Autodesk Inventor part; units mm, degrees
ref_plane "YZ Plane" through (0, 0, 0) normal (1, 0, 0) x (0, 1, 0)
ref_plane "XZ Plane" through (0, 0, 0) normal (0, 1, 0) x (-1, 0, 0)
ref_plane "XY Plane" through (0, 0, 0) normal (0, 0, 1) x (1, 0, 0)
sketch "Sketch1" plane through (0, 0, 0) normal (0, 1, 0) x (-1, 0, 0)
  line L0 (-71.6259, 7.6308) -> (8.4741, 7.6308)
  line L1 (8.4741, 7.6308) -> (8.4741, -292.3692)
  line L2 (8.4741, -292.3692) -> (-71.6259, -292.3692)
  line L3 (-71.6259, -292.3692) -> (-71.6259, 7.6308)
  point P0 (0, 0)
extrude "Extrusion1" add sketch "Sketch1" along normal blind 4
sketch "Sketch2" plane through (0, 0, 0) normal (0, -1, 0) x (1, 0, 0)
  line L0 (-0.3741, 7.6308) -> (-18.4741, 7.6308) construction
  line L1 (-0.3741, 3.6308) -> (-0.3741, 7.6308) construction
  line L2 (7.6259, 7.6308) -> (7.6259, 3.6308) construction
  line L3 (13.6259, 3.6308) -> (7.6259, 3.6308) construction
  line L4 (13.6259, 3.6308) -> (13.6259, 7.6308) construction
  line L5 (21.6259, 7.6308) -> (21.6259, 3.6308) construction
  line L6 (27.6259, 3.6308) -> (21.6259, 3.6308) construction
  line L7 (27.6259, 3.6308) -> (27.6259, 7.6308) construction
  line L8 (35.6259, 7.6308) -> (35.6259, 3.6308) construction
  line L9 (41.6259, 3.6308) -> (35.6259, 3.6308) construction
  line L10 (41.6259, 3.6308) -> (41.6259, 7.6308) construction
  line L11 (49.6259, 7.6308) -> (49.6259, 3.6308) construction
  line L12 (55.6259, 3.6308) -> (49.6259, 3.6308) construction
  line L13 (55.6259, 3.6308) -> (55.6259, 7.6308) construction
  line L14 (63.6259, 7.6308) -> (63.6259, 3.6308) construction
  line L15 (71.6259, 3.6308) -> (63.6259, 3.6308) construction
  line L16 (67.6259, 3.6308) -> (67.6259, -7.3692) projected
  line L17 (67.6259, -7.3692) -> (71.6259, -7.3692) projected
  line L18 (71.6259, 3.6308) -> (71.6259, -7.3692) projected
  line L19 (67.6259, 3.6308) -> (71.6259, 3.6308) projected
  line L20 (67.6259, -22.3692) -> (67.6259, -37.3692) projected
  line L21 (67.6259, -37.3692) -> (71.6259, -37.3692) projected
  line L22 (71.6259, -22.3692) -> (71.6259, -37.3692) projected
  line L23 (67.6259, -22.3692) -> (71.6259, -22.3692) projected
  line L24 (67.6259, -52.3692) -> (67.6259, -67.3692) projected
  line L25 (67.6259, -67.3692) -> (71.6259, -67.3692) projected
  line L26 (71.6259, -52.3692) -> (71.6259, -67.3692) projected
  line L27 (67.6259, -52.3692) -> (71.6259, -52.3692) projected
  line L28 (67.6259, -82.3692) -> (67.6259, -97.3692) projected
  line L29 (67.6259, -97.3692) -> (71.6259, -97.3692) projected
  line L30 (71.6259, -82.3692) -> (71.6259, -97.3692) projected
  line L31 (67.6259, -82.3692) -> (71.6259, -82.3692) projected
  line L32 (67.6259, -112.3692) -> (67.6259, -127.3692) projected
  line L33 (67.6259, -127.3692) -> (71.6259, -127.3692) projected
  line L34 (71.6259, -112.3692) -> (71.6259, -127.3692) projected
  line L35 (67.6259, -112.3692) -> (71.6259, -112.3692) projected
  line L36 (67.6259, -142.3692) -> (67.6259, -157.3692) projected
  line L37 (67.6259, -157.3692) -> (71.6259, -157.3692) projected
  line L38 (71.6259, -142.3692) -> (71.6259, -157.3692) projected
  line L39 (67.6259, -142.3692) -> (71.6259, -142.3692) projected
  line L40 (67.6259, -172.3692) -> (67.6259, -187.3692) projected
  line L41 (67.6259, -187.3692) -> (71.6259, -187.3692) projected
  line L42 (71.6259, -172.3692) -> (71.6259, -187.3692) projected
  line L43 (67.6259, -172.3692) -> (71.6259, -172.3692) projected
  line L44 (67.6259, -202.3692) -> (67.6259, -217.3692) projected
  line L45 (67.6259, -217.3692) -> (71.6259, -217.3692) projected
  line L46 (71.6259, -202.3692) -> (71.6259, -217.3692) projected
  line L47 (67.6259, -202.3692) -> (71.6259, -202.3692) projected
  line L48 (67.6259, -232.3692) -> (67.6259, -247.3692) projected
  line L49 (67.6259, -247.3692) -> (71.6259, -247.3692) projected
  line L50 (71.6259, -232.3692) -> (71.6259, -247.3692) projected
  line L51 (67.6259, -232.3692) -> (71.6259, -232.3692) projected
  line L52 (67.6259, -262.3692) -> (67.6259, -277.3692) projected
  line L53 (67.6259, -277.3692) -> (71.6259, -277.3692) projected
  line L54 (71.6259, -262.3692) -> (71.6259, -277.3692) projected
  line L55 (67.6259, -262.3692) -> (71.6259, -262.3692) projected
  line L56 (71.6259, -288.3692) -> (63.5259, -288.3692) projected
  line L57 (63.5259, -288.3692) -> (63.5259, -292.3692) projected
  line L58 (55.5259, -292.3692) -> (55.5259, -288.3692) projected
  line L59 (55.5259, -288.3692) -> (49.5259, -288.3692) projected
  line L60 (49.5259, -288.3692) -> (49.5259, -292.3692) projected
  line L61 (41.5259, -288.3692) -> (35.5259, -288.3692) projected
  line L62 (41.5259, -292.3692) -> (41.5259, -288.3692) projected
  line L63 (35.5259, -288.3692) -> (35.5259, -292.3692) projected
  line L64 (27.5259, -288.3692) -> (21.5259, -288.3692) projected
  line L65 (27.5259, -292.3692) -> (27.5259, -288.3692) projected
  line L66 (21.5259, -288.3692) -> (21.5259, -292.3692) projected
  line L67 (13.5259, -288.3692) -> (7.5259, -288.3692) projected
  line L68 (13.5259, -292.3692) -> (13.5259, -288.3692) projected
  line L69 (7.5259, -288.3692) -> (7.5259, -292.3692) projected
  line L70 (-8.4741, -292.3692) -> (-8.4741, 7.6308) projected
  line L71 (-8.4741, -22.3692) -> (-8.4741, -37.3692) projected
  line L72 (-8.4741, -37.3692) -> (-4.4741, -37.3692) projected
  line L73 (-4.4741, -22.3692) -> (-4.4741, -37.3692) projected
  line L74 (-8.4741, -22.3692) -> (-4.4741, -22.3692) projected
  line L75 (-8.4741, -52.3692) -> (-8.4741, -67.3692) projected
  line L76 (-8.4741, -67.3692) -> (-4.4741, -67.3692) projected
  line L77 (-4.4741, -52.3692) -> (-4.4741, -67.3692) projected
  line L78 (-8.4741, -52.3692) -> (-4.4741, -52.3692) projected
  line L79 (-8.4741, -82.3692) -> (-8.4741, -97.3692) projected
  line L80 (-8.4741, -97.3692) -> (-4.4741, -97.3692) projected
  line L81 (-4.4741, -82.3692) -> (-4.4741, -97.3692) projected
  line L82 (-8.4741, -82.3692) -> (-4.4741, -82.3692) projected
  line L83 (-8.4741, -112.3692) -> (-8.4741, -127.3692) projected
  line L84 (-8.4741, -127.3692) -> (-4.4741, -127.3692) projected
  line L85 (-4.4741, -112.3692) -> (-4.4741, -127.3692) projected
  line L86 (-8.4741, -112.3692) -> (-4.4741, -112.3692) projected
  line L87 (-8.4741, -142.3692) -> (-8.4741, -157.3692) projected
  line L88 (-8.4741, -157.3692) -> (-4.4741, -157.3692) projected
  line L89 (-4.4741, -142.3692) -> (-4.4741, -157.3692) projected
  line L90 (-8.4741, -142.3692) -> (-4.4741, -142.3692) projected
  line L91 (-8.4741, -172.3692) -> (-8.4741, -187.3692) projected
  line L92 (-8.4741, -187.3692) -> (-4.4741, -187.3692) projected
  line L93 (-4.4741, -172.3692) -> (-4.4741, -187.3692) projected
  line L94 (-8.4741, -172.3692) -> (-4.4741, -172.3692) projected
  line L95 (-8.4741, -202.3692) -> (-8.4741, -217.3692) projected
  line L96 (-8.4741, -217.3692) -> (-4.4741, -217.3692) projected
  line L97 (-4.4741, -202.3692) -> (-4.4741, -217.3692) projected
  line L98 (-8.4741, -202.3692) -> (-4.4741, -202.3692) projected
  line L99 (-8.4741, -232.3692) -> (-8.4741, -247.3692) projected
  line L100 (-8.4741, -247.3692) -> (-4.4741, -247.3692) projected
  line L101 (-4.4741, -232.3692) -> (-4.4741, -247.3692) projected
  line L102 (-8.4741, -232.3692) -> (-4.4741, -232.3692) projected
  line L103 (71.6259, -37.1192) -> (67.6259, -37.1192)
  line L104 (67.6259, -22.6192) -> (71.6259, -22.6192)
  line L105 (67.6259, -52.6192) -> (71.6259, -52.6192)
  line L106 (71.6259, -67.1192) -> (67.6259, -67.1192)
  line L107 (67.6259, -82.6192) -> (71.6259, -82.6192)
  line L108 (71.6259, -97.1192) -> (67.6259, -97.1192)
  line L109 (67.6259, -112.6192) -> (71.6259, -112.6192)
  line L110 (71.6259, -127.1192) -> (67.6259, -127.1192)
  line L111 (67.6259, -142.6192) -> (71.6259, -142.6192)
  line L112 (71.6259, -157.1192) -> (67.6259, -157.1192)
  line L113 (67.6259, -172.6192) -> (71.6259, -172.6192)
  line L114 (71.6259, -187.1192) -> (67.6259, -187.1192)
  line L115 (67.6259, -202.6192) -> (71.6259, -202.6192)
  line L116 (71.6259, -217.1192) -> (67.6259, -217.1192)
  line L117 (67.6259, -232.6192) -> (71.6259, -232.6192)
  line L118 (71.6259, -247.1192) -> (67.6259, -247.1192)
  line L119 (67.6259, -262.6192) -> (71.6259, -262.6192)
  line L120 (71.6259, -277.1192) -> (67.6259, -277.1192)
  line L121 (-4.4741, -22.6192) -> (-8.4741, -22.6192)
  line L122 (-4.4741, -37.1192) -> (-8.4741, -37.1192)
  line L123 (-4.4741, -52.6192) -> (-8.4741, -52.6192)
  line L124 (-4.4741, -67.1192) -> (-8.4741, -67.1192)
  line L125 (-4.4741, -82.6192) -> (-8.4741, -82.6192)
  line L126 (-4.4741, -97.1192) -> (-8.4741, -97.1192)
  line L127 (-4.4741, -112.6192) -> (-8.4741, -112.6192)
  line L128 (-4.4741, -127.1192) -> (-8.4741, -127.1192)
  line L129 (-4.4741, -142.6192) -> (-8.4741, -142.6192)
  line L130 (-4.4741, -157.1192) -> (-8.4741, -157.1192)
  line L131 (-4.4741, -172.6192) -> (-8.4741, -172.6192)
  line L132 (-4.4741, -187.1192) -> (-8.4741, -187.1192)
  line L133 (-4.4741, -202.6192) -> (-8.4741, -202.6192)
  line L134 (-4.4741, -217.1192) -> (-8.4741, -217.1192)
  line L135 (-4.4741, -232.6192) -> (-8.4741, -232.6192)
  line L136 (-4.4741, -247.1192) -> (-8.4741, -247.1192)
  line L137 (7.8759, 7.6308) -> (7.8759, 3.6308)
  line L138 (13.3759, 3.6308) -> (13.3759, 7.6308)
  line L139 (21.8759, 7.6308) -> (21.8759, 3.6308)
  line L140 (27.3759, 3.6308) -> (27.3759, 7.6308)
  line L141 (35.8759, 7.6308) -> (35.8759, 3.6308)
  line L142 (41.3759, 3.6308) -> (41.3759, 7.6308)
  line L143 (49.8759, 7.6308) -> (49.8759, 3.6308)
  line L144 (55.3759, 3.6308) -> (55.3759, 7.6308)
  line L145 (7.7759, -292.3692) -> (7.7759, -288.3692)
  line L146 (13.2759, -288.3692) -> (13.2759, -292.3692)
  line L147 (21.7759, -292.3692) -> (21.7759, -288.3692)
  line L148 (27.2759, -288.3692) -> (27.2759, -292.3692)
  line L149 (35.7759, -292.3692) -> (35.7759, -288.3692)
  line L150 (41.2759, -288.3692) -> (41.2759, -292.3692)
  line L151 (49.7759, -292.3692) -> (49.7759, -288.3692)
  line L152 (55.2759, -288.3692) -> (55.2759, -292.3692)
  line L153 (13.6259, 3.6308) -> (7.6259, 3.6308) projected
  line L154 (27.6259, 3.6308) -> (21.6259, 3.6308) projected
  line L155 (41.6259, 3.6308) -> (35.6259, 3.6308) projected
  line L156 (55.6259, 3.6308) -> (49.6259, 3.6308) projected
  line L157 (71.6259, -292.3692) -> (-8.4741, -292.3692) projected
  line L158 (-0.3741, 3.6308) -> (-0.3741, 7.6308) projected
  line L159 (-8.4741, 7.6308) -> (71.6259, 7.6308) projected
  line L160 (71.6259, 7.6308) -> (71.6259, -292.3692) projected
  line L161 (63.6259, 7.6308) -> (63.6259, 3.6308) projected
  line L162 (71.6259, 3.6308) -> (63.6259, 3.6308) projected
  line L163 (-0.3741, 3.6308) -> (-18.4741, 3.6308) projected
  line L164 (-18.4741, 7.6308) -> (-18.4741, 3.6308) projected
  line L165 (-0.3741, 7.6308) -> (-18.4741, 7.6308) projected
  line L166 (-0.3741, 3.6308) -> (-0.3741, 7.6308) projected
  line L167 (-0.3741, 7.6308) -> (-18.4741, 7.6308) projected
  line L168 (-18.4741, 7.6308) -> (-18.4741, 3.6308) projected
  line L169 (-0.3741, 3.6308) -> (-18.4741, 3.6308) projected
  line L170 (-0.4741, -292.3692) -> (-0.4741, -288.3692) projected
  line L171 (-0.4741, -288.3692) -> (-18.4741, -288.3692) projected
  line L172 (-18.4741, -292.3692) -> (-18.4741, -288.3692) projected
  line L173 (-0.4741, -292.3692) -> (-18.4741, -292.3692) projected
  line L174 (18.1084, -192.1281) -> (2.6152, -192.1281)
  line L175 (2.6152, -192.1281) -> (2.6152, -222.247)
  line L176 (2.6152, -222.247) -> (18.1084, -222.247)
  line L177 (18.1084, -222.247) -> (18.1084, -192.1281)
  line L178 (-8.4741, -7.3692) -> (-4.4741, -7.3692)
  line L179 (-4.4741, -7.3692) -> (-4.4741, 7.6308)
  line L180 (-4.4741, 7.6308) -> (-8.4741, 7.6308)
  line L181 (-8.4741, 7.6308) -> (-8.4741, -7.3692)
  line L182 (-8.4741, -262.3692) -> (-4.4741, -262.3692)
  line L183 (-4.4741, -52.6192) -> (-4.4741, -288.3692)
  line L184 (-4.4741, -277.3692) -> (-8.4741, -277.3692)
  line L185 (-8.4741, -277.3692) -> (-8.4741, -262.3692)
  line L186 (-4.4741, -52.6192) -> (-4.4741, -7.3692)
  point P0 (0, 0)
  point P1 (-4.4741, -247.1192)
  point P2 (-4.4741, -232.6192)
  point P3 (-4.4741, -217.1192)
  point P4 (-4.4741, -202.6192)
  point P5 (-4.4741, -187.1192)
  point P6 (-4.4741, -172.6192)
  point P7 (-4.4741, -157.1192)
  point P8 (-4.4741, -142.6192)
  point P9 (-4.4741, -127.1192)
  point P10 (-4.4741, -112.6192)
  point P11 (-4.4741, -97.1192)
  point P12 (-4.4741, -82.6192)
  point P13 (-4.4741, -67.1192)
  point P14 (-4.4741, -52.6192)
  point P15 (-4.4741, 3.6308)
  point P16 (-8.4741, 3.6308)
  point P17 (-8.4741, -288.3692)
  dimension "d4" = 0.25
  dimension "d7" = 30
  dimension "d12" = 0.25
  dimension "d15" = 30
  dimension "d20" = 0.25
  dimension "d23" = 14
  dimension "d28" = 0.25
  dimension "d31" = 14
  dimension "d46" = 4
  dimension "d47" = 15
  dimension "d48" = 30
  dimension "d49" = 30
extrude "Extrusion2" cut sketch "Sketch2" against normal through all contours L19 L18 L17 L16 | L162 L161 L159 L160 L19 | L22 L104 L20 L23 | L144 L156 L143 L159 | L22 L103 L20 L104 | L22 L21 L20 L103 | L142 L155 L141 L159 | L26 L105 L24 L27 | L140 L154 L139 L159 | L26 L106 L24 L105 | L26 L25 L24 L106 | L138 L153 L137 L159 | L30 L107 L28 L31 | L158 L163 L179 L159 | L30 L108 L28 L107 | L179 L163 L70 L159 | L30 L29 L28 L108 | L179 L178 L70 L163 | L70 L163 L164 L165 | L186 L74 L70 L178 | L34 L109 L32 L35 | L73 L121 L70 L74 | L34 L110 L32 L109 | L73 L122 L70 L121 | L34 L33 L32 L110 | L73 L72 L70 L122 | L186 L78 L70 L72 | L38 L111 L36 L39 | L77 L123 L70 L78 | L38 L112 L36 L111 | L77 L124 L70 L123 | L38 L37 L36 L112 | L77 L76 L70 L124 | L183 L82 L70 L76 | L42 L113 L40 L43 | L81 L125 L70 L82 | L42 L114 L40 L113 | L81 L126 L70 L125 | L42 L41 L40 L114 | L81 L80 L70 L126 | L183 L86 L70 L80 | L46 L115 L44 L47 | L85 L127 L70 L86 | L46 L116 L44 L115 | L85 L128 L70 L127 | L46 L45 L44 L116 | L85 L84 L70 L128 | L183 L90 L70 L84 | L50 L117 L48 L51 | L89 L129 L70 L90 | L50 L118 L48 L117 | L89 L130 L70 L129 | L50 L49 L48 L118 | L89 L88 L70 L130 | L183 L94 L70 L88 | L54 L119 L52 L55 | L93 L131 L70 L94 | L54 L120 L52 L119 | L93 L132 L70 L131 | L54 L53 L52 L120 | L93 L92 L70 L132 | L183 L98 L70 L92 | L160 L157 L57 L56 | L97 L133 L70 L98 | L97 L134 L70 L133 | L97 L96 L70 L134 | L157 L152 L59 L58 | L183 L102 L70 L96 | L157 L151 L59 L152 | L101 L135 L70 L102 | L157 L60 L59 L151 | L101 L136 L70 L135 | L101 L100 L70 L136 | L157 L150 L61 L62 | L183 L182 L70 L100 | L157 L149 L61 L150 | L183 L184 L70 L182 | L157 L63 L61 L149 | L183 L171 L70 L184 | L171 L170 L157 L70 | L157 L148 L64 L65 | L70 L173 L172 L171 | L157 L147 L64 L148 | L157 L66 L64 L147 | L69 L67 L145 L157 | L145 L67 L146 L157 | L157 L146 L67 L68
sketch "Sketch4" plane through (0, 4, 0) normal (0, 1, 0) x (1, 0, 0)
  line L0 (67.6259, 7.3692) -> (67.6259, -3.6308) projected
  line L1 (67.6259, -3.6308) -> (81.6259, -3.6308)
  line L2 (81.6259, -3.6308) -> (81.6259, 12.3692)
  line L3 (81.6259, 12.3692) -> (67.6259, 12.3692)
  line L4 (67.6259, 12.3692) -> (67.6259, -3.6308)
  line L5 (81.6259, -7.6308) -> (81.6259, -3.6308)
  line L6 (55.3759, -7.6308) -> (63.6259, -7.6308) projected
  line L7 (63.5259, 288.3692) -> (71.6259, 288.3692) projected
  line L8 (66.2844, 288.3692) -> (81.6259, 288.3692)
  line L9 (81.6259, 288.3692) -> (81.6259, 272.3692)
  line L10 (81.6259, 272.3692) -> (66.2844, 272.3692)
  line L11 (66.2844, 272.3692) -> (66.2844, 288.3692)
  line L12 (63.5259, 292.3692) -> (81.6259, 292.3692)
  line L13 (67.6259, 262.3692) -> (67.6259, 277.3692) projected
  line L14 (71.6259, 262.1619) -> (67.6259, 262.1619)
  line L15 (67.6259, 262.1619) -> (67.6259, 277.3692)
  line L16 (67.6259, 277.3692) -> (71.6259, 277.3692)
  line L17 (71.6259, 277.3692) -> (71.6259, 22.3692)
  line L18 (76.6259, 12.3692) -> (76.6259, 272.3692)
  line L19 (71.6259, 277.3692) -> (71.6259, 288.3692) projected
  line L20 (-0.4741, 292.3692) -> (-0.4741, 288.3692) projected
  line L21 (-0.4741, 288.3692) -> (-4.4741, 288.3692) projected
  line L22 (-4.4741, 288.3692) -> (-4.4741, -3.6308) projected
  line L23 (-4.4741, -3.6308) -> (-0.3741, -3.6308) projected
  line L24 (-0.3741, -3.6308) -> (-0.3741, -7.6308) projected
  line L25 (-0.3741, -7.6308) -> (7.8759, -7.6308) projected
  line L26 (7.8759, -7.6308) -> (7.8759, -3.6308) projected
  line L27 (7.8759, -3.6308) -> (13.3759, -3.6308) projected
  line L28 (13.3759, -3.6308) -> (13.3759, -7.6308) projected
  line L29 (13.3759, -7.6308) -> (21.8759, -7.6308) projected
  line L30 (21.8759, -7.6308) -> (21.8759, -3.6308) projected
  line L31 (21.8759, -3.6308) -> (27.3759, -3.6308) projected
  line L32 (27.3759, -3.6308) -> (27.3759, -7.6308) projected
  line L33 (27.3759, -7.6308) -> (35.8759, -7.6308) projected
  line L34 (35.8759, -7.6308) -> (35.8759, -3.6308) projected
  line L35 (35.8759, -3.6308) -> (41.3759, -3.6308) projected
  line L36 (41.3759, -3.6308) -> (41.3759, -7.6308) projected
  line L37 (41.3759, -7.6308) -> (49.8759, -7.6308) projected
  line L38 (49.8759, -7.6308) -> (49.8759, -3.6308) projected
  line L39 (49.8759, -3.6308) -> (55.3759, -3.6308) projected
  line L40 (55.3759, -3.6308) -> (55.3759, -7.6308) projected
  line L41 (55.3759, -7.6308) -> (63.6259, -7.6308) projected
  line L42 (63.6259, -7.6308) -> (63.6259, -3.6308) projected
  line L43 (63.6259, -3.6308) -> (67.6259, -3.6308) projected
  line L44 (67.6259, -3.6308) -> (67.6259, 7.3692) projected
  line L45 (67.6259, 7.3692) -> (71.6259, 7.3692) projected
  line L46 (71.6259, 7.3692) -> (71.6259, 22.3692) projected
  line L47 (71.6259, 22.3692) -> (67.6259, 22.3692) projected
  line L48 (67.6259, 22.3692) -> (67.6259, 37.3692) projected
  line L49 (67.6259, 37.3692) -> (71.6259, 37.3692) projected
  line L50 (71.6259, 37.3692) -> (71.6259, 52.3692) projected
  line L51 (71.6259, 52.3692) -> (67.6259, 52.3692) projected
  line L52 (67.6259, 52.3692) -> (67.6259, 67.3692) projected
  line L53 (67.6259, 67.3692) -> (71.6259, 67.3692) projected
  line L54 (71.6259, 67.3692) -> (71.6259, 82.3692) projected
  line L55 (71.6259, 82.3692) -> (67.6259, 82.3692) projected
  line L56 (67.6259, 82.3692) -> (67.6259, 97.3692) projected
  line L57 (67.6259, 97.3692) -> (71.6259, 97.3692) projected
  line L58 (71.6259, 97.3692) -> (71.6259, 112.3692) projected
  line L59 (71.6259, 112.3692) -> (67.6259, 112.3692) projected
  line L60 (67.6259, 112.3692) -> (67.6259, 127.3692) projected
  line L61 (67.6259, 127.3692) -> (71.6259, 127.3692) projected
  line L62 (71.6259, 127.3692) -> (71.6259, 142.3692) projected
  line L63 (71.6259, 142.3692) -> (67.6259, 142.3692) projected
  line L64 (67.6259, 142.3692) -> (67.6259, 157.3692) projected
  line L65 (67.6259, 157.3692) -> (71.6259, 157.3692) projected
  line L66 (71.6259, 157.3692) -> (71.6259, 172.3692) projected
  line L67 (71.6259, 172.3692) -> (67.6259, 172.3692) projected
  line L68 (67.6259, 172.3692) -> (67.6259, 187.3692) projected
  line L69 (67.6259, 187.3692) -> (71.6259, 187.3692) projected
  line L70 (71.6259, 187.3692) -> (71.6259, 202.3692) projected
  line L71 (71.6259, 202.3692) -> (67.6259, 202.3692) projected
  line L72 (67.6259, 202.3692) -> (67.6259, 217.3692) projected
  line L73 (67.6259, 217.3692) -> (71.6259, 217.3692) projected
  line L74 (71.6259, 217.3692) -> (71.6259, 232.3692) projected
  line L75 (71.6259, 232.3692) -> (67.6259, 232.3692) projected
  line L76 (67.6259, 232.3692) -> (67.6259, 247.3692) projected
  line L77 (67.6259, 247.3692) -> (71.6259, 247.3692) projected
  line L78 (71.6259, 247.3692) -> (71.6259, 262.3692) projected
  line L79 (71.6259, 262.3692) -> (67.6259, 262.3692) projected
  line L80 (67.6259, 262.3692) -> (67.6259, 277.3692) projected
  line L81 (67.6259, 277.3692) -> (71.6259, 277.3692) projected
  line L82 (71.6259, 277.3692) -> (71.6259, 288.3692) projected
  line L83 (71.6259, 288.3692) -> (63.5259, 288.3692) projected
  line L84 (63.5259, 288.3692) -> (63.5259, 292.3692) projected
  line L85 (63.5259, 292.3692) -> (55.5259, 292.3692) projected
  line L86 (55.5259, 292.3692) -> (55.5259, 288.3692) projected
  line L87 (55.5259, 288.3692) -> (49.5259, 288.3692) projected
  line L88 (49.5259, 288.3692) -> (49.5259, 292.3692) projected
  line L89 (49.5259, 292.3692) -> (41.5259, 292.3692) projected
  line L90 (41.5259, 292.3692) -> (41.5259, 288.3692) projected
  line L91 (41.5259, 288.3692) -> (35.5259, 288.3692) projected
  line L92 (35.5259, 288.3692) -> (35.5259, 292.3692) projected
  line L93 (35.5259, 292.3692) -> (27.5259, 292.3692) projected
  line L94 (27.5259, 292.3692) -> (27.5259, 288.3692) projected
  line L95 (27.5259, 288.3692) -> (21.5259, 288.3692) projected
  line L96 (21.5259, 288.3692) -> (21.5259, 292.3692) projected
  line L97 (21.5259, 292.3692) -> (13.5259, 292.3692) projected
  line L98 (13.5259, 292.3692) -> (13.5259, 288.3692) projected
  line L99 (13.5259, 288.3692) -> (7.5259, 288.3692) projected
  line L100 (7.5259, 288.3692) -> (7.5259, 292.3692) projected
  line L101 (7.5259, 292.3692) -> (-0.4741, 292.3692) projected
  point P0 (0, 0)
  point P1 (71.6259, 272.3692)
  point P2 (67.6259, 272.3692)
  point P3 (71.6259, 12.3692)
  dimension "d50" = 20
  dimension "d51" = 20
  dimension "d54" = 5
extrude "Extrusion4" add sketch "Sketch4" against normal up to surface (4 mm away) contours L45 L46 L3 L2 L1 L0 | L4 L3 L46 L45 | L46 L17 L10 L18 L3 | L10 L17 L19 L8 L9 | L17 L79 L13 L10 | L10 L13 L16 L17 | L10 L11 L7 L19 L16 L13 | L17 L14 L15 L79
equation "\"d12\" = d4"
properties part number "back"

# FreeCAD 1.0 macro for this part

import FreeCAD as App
import Part
import Sketcher

V = App.Vector

doc = App.newDocument("Part")
params = doc.addObject("Spreadsheet::Sheet", "Params")
for row, (alias, value) in enumerate([
    ("sketch1_height", "300 mm"),
    ("sketch1_width", "80.1 mm"),
    ("pad1_length", "4 mm"),
    ("sketch2_width", "4 mm"),
    ("sketch2_height", "15 mm"),
    ("sketch2_width2", "10 mm"),
    ("sketch2_width3", "18 mm"),
    ("sketch2_width4", "6 mm"),
    ("sketch3_width", "5 mm"),
    ("sketch3_width2", "4 mm"),
    ("sketch3_height", "260 mm"),
    ("sketch3_height2", "16 mm"),
    ("pad2_length", "4 mm"),
], start=1):
    params.set(f"A{row}", alias)
    params.set(f"B{row}", "=" + value)
    params.setAlias(f"B{row}", alias)

body = doc.addObject("PartDesign::Body", "Body")

# Sketch on XZ plane
sketch1 = body.newObject("Sketcher::SketchObject", "Sketch")
sketch1.AttachmentSupport = (doc.getObject("XZ_Plane"), [""])
sketch1.MapMode = "FlatFace"
sketch1.addGeometry([
    Part.LineSegment(V(-8.4741, 7.6308, 0), V(71.6259, 7.6308, 0)),
    Part.LineSegment(V(71.6259, 7.6308, 0), V(71.6259, -292.3692, 0)),
    Part.LineSegment(V(71.6259, -292.3692, 0), V(-8.4741, -292.3692, 0)),
    Part.LineSegment(V(-8.4741, -292.3692, 0), V(-8.4741, 7.6308, 0)),
], False)
sketch1.addConstraint([
    Sketcher.Constraint("Coincident", 0, 2, 1, 1),
    Sketcher.Constraint("Coincident", 1, 2, 2, 1),
    Sketcher.Constraint("Coincident", 2, 2, 3, 1),
    Sketcher.Constraint("Coincident", 3, 2, 0, 1),
    Sketcher.Constraint("Horizontal", 0),
    Sketcher.Constraint("Vertical", 1),
    Sketcher.Constraint("Horizontal", 2),
    Sketcher.Constraint("Vertical", 3),
    Sketcher.Constraint("DistanceY", 1, 2, 1, 1, 300.0),
    Sketcher.Constraint("DistanceX", 0, 1, 0, 2, 80.1),
    Sketcher.Constraint("DistanceX", -1, 1, 0, 2, 71.626),
    Sketcher.Constraint("DistanceY", -1, 1, 0, 2, 7.6308),
])
sketch1.setExpression("Constraints[8]", "Params.sketch1_height")
sketch1.setExpression("Constraints[9]", "Params.sketch1_width")
pad1 = body.newObject("PartDesign::Pad", "Pad")
pad1.Profile = sketch1
pad1.setExpression("Length", "Params.pad1_length")
pad1.Reversed = True

# Sketch on XZ plane
sketch2 = body.newObject("Sketcher::SketchObject", "Sketch001")
sketch2.AttachmentSupport = (doc.getObject("XZ_Plane"), [""])
sketch2.MapMode = "FlatFace"
sketch2.addGeometry([
    Part.LineSegment(V(71.6259, -7.3692, 0), V(71.6259, 7.6308, 0)),  # 0
    Part.LineSegment(V(71.6259, 7.6308, 0), V(63.6259, 7.6308, 0)),  # 1
    Part.LineSegment(V(63.6259, 7.6308, 0), V(63.6259, 3.6308, 0)),  # 2
    Part.LineSegment(V(63.6259, 3.6308, 0), V(67.6259, 3.6308, 0)),  # 3
    Part.LineSegment(V(67.6259, 3.6308, 0), V(67.6259, -7.3692, 0)),  # 4
    Part.LineSegment(V(67.6259, -7.3692, 0), V(71.6259, -7.3692, 0)),  # 5
    Part.LineSegment(V(71.6259, -22.3692, 0), V(67.6259, -22.3692, 0)),  # 6
    Part.LineSegment(V(67.6259, -22.3692, 0), V(67.6259, -37.3692, 0)),  # 7
    Part.LineSegment(V(67.6259, -37.3692, 0), V(71.6259, -37.3692, 0)),  # 8
    Part.LineSegment(V(71.6259, -37.3692, 0), V(71.6259, -22.3692, 0)),  # 9
    Part.LineSegment(V(55.3759, 3.6308, 0), V(55.3759, 7.6308, 0)),  # 10
    Part.LineSegment(V(55.3759, 7.6308, 0), V(49.8759, 7.6308, 0)),  # 11
    Part.LineSegment(V(49.8759, 7.6308, 0), V(49.8759, 3.6308, 0)),  # 12
    Part.LineSegment(V(49.8759, 3.6308, 0), V(55.3759, 3.6308, 0)),  # 13
    Part.LineSegment(V(41.3759, 3.6308, 0), V(41.3759, 7.6308, 0)),  # 14
    Part.LineSegment(V(41.3759, 7.6308, 0), V(35.8759, 7.6308, 0)),  # 15
    Part.LineSegment(V(35.8759, 7.6308, 0), V(35.8759, 3.6308, 0)),  # 16
    Part.LineSegment(V(35.8759, 3.6308, 0), V(41.3759, 3.6308, 0)),  # 17
    Part.LineSegment(V(71.6259, -52.3692, 0), V(67.6259, -52.3692, 0)),  # 18
    Part.LineSegment(V(67.6259, -52.3692, 0), V(67.6259, -67.3692, 0)),  # 19
    Part.LineSegment(V(67.6259, -67.3692, 0), V(71.6259, -67.3692, 0)),  # 20
    Part.LineSegment(V(71.6259, -67.3692, 0), V(71.6259, -52.3692, 0)),  # 21
    Part.LineSegment(V(27.3759, 3.6308, 0), V(27.3759, 7.6308, 0)),  # 22
    Part.LineSegment(V(27.3759, 7.6308, 0), V(21.8759, 7.6308, 0)),  # 23
    Part.LineSegment(V(21.8759, 7.6308, 0), V(21.8759, 3.6308, 0)),  # 24
    Part.LineSegment(V(21.8759, 3.6308, 0), V(27.3759, 3.6308, 0)),  # 25
    Part.LineSegment(V(13.3759, 3.6308, 0), V(13.3759, 7.6308, 0)),  # 26
    Part.LineSegment(V(13.3759, 7.6308, 0), V(7.8759, 7.6308, 0)),  # 27
    Part.LineSegment(V(7.8759, 7.6308, 0), V(7.8759, 3.6308, 0)),  # 28
    Part.LineSegment(V(7.8759, 3.6308, 0), V(13.3759, 3.6308, 0)),  # 29
    Part.LineSegment(V(71.6259, -82.3692, 0), V(67.6259, -82.3692, 0)),  # 30
    Part.LineSegment(V(67.6259, -82.3692, 0), V(67.6259, -97.3692, 0)),  # 31
    Part.LineSegment(V(67.6259, -97.3692, 0), V(71.6259, -97.3692, 0)),  # 32
    Part.LineSegment(V(71.6259, -97.3692, 0), V(71.6259, -82.3692, 0)),  # 33
    Part.LineSegment(V(-0.3741, 3.6308, 0), V(-0.3741, 7.6308, 0)),  # 34
    Part.LineSegment(V(-0.3741, 7.6308, 0), V(-18.4741, 7.6308, 0)),  # 35
    Part.LineSegment(V(-18.4741, 7.6308, 0), V(-18.4741, 3.6308, 0)),  # 36
    Part.LineSegment(V(-18.4741, 3.6308, 0), V(-8.4741, 3.6308, 0)),  # 37
    Part.LineSegment(V(-8.4741, 3.6308, 0), V(-8.4741, -288.3692, 0)),  # 38
    Part.LineSegment(V(-8.4741, -288.3692, 0), V(-18.4741, -288.3692, 0)),  # 39
    Part.LineSegment(V(-18.4741, -288.3692, 0), V(-18.4741, -292.3692, 0)),  # 40
    Part.LineSegment(V(-18.4741, -292.3692, 0), V(-0.4741, -292.3692, 0)),  # 41
    Part.LineSegment(V(-0.4741, -292.3692, 0), V(-0.4741, -288.3692, 0)),  # 42
    Part.LineSegment(V(-0.4741, -288.3692, 0), V(-4.4741, -288.3692, 0)),  # 43
    Part.LineSegment(V(-4.4741, -288.3692, 0), V(-4.4741, 3.6308, 0)),  # 44
    Part.LineSegment(V(-4.4741, 3.6308, 0), V(-0.3741, 3.6308, 0)),  # 45
    Part.LineSegment(V(71.6259, -112.3692, 0), V(67.6259, -112.3692, 0)),  # 46
    Part.LineSegment(V(67.6259, -112.3692, 0), V(67.6259, -127.3692, 0)),  # 47
    Part.LineSegment(V(67.6259, -127.3692, 0), V(71.6259, -127.3692, 0)),  # 48
    Part.LineSegment(V(71.6259, -127.3692, 0), V(71.6259, -112.3692, 0)),  # 49
    Part.LineSegment(V(71.6259, -142.3692, 0), V(67.6259, -142.3692, 0)),  # 50
    Part.LineSegment(V(67.6259, -142.3692, 0), V(67.6259, -157.3692, 0)),  # 51
    Part.LineSegment(V(67.6259, -157.3692, 0), V(71.6259, -157.3692, 0)),  # 52
    Part.LineSegment(V(71.6259, -157.3692, 0), V(71.6259, -142.3692, 0)),  # 53
    Part.LineSegment(V(71.6259, -172.3692, 0), V(67.6259, -172.3692, 0)),  # 54
    Part.LineSegment(V(67.6259, -172.3692, 0), V(67.6259, -187.3692, 0)),  # 55
    Part.LineSegment(V(67.6259, -187.3692, 0), V(71.6259, -187.3692, 0)),  # 56
    Part.LineSegment(V(71.6259, -187.3692, 0), V(71.6259, -172.3692, 0)),  # 57
    Part.LineSegment(V(71.6259, -202.3692, 0), V(67.6259, -202.3692, 0)),  # 58
    Part.LineSegment(V(67.6259, -202.3692, 0), V(67.6259, -217.3692, 0)),  # 59
    Part.LineSegment(V(67.6259, -217.3692, 0), V(71.6259, -217.3692, 0)),  # 60
    Part.LineSegment(V(71.6259, -217.3692, 0), V(71.6259, -202.3692, 0)),  # 61
    Part.LineSegment(V(71.6259, -232.3692, 0), V(67.6259, -232.3692, 0)),  # 62
    Part.LineSegment(V(67.6259, -232.3692, 0), V(67.6259, -247.3692, 0)),  # 63
    Part.LineSegment(V(67.6259, -247.3692, 0), V(71.6259, -247.3692, 0)),  # 64
    Part.LineSegment(V(71.6259, -247.3692, 0), V(71.6259, -232.3692, 0)),  # 65
    Part.LineSegment(V(71.6259, -262.3692, 0), V(67.6259, -262.3692, 0)),  # 66
    Part.LineSegment(V(67.6259, -262.3692, 0), V(67.6259, -277.3692, 0)),  # 67
    Part.LineSegment(V(67.6259, -277.3692, 0), V(71.6259, -277.3692, 0)),  # 68
    Part.LineSegment(V(71.6259, -277.3692, 0), V(71.6259, -262.3692, 0)),  # 69
    Part.LineSegment(V(71.6259, -292.3692, 0), V(71.6259, -288.3692, 0)),  # 70
    Part.LineSegment(V(71.6259, -288.3692, 0), V(63.5259, -288.3692, 0)),  # 71
    Part.LineSegment(V(63.5259, -288.3692, 0), V(63.5259, -292.3692, 0)),  # 72
    Part.LineSegment(V(63.5259, -292.3692, 0), V(71.6259, -292.3692, 0)),  # 73
    Part.LineSegment(V(55.5259, -292.3692, 0), V(55.5259, -288.3692, 0)),  # 74
    Part.LineSegment(V(55.5259, -288.3692, 0), V(49.5259, -288.3692, 0)),  # 75
    Part.LineSegment(V(49.5259, -288.3692, 0), V(49.5259, -292.3692, 0)),  # 76
    Part.LineSegment(V(49.5259, -292.3692, 0), V(55.5259, -292.3692, 0)),  # 77
    Part.LineSegment(V(41.5259, -292.3692, 0), V(41.5259, -288.3692, 0)),  # 78
    Part.LineSegment(V(41.5259, -288.3692, 0), V(35.5259, -288.3692, 0)),  # 79
    Part.LineSegment(V(35.5259, -288.3692, 0), V(35.5259, -292.3692, 0)),  # 80
    Part.LineSegment(V(35.5259, -292.3692, 0), V(41.5259, -292.3692, 0)),  # 81
    Part.LineSegment(V(27.5259, -292.3692, 0), V(27.5259, -288.3692, 0)),  # 82
    Part.LineSegment(V(27.5259, -288.3692, 0), V(21.5259, -288.3692, 0)),  # 83
    Part.LineSegment(V(21.5259, -288.3692, 0), V(21.5259, -292.3692, 0)),  # 84
    Part.LineSegment(V(21.5259, -292.3692, 0), V(27.5259, -292.3692, 0)),  # 85
    Part.LineSegment(V(7.5259, -288.3692, 0), V(7.5259, -292.3692, 0)),  # 86
    Part.LineSegment(V(7.5259, -292.3692, 0), V(13.5259, -292.3692, 0)),  # 87
    Part.LineSegment(V(13.5259, -292.3692, 0), V(13.5259, -288.3692, 0)),  # 88
    Part.LineSegment(V(13.5259, -288.3692, 0), V(7.5259, -288.3692, 0)),  # 89
], False)
sketch2.addConstraint([
    Sketcher.Constraint("Coincident", 0, 2, 1, 1),
    Sketcher.Constraint("Coincident", 1, 2, 2, 1),
    Sketcher.Constraint("Coincident", 2, 2, 3, 1),
    Sketcher.Constraint("Coincident", 3, 2, 4, 1),
    Sketcher.Constraint("Coincident", 4, 2, 5, 1),
    Sketcher.Constraint("Coincident", 5, 2, 0, 1),
    Sketcher.Constraint("Coincident", 6, 2, 7, 1),
    Sketcher.Constraint("Coincident", 7, 2, 8, 1),
    Sketcher.Constraint("Coincident", 8, 2, 9, 1),
    Sketcher.Constraint("Coincident", 9, 2, 6, 1),
    Sketcher.Constraint("Coincident", 10, 2, 11, 1),
    Sketcher.Constraint("Coincident", 11, 2, 12, 1),
    Sketcher.Constraint("Coincident", 12, 2, 13, 1),
    Sketcher.Constraint("Coincident", 13, 2, 10, 1),
    Sketcher.Constraint("Coincident", 14, 2, 15, 1),
    Sketcher.Constraint("Coincident", 15, 2, 16, 1),
    Sketcher.Constraint("Coincident", 16, 2, 17, 1),
    Sketcher.Constraint("Coincident", 17, 2, 14, 1),
    Sketcher.Constraint("Coincident", 18, 2, 19, 1),
    Sketcher.Constraint("Coincident", 19, 2, 20, 1),
    Sketcher.Constraint("Coincident", 20, 2, 21, 1),
    Sketcher.Constraint("Coincident", 21, 2, 18, 1),
    Sketcher.Constraint("Coincident", 22, 2, 23, 1),
    Sketcher.Constraint("Coincident", 23, 2, 24, 1),
    Sketcher.Constraint("Coincident", 24, 2, 25, 1),
    Sketcher.Constraint("Coincident", 25, 2, 22, 1),
    Sketcher.Constraint("Coincident", 26, 2, 27, 1),
    Sketcher.Constraint("Coincident", 27, 2, 28, 1),
    Sketcher.Constraint("Coincident", 28, 2, 29, 1),
    Sketcher.Constraint("Coincident", 29, 2, 26, 1),
    Sketcher.Constraint("Coincident", 30, 2, 31, 1),
    Sketcher.Constraint("Coincident", 31, 2, 32, 1),
    Sketcher.Constraint("Coincident", 32, 2, 33, 1),
    Sketcher.Constraint("Coincident", 33, 2, 30, 1),
    Sketcher.Constraint("Coincident", 34, 2, 35, 1),
    Sketcher.Constraint("Coincident", 35, 2, 36, 1),
    Sketcher.Constraint("Coincident", 36, 2, 37, 1),
    Sketcher.Constraint("Coincident", 37, 2, 38, 1),
    Sketcher.Constraint("Coincident", 38, 2, 39, 1),
    Sketcher.Constraint("Coincident", 39, 2, 40, 1),
    Sketcher.Constraint("Coincident", 40, 2, 41, 1),
    Sketcher.Constraint("Coincident", 41, 2, 42, 1),
    Sketcher.Constraint("Coincident", 42, 2, 43, 1),
    Sketcher.Constraint("Coincident", 43, 2, 44, 1),
    Sketcher.Constraint("Coincident", 44, 2, 45, 1),
    Sketcher.Constraint("Coincident", 45, 2, 34, 1),
    Sketcher.Constraint("Coincident", 46, 2, 47, 1),
    Sketcher.Constraint("Coincident", 47, 2, 48, 1),
    Sketcher.Constraint("Coincident", 48, 2, 49, 1),
    Sketcher.Constraint("Coincident", 49, 2, 46, 1),
    Sketcher.Constraint("Coincident", 50, 2, 51, 1),
    Sketcher.Constraint("Coincident", 51, 2, 52, 1),
    Sketcher.Constraint("Coincident", 52, 2, 53, 1),
    Sketcher.Constraint("Coincident", 53, 2, 50, 1),
    Sketcher.Constraint("Coincident", 54, 2, 55, 1),
    Sketcher.Constraint("Coincident", 55, 2, 56, 1),
    Sketcher.Constraint("Coincident", 56, 2, 57, 1),
    Sketcher.Constraint("Coincident", 57, 2, 54, 1),
    Sketcher.Constraint("Coincident", 58, 2, 59, 1),
    Sketcher.Constraint("Coincident", 59, 2, 60, 1),
    Sketcher.Constraint("Coincident", 60, 2, 61, 1),
    Sketcher.Constraint("Coincident", 61, 2, 58, 1),
    Sketcher.Constraint("Coincident", 62, 2, 63, 1),
    Sketcher.Constraint("Coincident", 63, 2, 64, 1),
    Sketcher.Constraint("Coincident", 64, 2, 65, 1),
    Sketcher.Constraint("Coincident", 65, 2, 62, 1),
    Sketcher.Constraint("Coincident", 66, 2, 67, 1),
    Sketcher.Constraint("Coincident", 67, 2, 68, 1),
    Sketcher.Constraint("Coincident", 68, 2, 69, 1),
    Sketcher.Constraint("Coincident", 69, 2, 66, 1),
    Sketcher.Constraint("Coincident", 70, 2, 71, 1),
    Sketcher.Constraint("Coincident", 71, 2, 72, 1),
    Sketcher.Constraint("Coincident", 72, 2, 73, 1),
    Sketcher.Constraint("Coincident", 73, 2, 70, 1),
    Sketcher.Constraint("Coincident", 74, 2, 75, 1),
    Sketcher.Constraint("Coincident", 75, 2, 76, 1),
    Sketcher.Constraint("Coincident", 76, 2, 77, 1),
    Sketcher.Constraint("Coincident", 77, 2, 74, 1),
    Sketcher.Constraint("Coincident", 78, 2, 79, 1),
    Sketcher.Constraint("Coincident", 79, 2, 80, 1),
    Sketcher.Constraint("Coincident", 80, 2, 81, 1),
    Sketcher.Constraint("Coincident", 81, 2, 78, 1),
    Sketcher.Constraint("Coincident", 82, 2, 83, 1),
    Sketcher.Constraint("Coincident", 83, 2, 84, 1),
    Sketcher.Constraint("Coincident", 84, 2, 85, 1),
    Sketcher.Constraint("Coincident", 85, 2, 82, 1),
    Sketcher.Constraint("Coincident", 86, 2, 87, 1),
    Sketcher.Constraint("Coincident", 87, 2, 88, 1),
    Sketcher.Constraint("Coincident", 88, 2, 89, 1),
    Sketcher.Constraint("Coincident", 89, 2, 86, 1),
    Sketcher.Constraint("Vertical", 0),
    Sketcher.Constraint("Horizontal", 1),
    Sketcher.Constraint("Vertical", 2),
    Sketcher.Constraint("Horizontal", 3),
    Sketcher.Constraint("Vertical", 4),
    Sketcher.Constraint("Horizontal", 5),
    Sketcher.Constraint("Horizontal", 6),
    Sketcher.Constraint("Vertical", 7),
    Sketcher.Constraint("Horizontal", 8),
    Sketcher.Constraint("Vertical", 9),
    Sketcher.Constraint("Vertical", 10),
    Sketcher.Constraint("Horizontal", 11),
    Sketcher.Constraint("Vertical", 12),
    Sketcher.Constraint("Horizontal", 13),
    Sketcher.Constraint("Vertical", 14),
    Sketcher.Constraint("Horizontal", 15),
    Sketcher.Constraint("Vertical", 16),
    Sketcher.Constraint("Horizontal", 17),
    Sketcher.Constraint("Horizontal", 18),
    Sketcher.Constraint("Vertical", 19),
    Sketcher.Constraint("Horizontal", 20),
    Sketcher.Constraint("Vertical", 21),
    Sketcher.Constraint("Vertical", 22),
    Sketcher.Constraint("Horizontal", 23),
    Sketcher.Constraint("Vertical", 24),
    Sketcher.Constraint("Horizontal", 25),
    Sketcher.Constraint("Vertical", 26),
    Sketcher.Constraint("Horizontal", 27),
    Sketcher.Constraint("Vertical", 28),
    Sketcher.Constraint("Horizontal", 29),
    Sketcher.Constraint("Horizontal", 30),
    Sketcher.Constraint("Vertical", 31),
    Sketcher.Constraint("Horizontal", 32),
    Sketcher.Constraint("Vertical", 33),
    Sketcher.Constraint("Vertical", 34),
    Sketcher.Constraint("Horizontal", 35),
    Sketcher.Constraint("Vertical", 36),
    Sketcher.Constraint("Horizontal", 37),
    Sketcher.Constraint("Vertical", 38),
    Sketcher.Constraint("Horizontal", 39),
    Sketcher.Constraint("Vertical", 40),
    Sketcher.Constraint("Horizontal", 41),
    Sketcher.Constraint("Vertical", 42),
    Sketcher.Constraint("Horizontal", 43),
    Sketcher.Constraint("Vertical", 44),
    Sketcher.Constraint("Horizontal", 45),
    Sketcher.Constraint("Horizontal", 46),
    Sketcher.Constraint("Vertical", 47),
    Sketcher.Constraint("Horizontal", 48),
    Sketcher.Constraint("Vertical", 49),
    Sketcher.Constraint("Horizontal", 50),
    Sketcher.Constraint("Vertical", 51),
    Sketcher.Constraint("Horizontal", 52),
    Sketcher.Constraint("Vertical", 53),
    Sketcher.Constraint("Horizontal", 54),
    Sketcher.Constraint("Vertical", 55),
    Sketcher.Constraint("Horizontal", 56),
    Sketcher.Constraint("Vertical", 57),
    Sketcher.Constraint("Horizontal", 58),
    Sketcher.Constraint("Vertical", 59),
    Sketcher.Constraint("Horizontal", 60),
    Sketcher.Constraint("Vertical", 61),
    Sketcher.Constraint("Horizontal", 62),
    Sketcher.Constraint("Vertical", 63),
    Sketcher.Constraint("Horizontal", 64),
    Sketcher.Constraint("Vertical", 65),
    Sketcher.Constraint("Horizontal", 66),
    Sketcher.Constraint("Vertical", 67),
    Sketcher.Constraint("Horizontal", 68),
    Sketcher.Constraint("Vertical", 69),
    Sketcher.Constraint("Vertical", 70),
    Sketcher.Constraint("Horizontal", 71),
    Sketcher.Constraint("Vertical", 72),
    Sketcher.Constraint("Horizontal", 73),
    Sketcher.Constraint("Vertical", 74),
    Sketcher.Constraint("Horizontal", 75),
    Sketcher.Constraint("Vertical", 76),
    Sketcher.Constraint("Horizontal", 77),
    Sketcher.Constraint("Vertical", 78),
    Sketcher.Constraint("Horizontal", 79),
    Sketcher.Constraint("Vertical", 80),
    Sketcher.Constraint("Horizontal", 81),
    Sketcher.Constraint("Vertical", 82),
    Sketcher.Constraint("Horizontal", 83),
    Sketcher.Constraint("Vertical", 84),
    Sketcher.Constraint("Horizontal", 85),
    Sketcher.Constraint("Vertical", 86),
    Sketcher.Constraint("Horizontal", 87),
    Sketcher.Constraint("Vertical", 88),
    Sketcher.Constraint("Horizontal", 89),
    Sketcher.Constraint("Horizontal", 1, 2, 10, 2),
    Sketcher.Constraint("Horizontal", 3, 2, 12, 2),
    Sketcher.Constraint("Horizontal", 11, 2, 14, 2),
    Sketcher.Constraint("Horizontal", 13, 2, 16, 2),
    Sketcher.Constraint("Horizontal", 15, 2, 22, 2),
    Sketcher.Constraint("Horizontal", 17, 2, 24, 2),
    Sketcher.Constraint("Horizontal", 23, 2, 26, 2),
    Sketcher.Constraint("Horizontal", 25, 2, 28, 2),
    Sketcher.Constraint("Horizontal", 27, 2, 34, 2),
    Sketcher.Constraint("Horizontal", 29, 2, 36, 2),
    Sketcher.Constraint("Horizontal", 39, 2, 42, 2),
    Sketcher.Constraint("Horizontal", 37, 2, 44, 2),
    Sketcher.Constraint("Horizontal", 43, 2, 70, 2),
    Sketcher.Constraint("Horizontal", 41, 2, 72, 2),
    Sketcher.Constraint("Horizontal", 71, 2, 74, 2),
    Sketcher.Constraint("Horizontal", 73, 2, 76, 2),
    Sketcher.Constraint("Horizontal", 75, 2, 78, 2),
    Sketcher.Constraint("Horizontal", 77, 2, 80, 2),
    Sketcher.Constraint("Horizontal", 79, 2, 82, 2),
    Sketcher.Constraint("Horizontal", 81, 2, 84, 2),
    Sketcher.Constraint("Horizontal", 85, 2, 86, 2),
    Sketcher.Constraint("Horizontal", 83, 2, 88, 2),
    Sketcher.Constraint("Vertical", 4, 2, 6, 2),
    Sketcher.Constraint("Vertical", 5, 2, 8, 2),
    Sketcher.Constraint("Vertical", 7, 2, 18, 2),
    Sketcher.Constraint("Vertical", 9, 2, 20, 2),
    Sketcher.Constraint("Vertical", 19, 2, 30, 2),
    Sketcher.Constraint("Vertical", 21, 2, 32, 2),
    Sketcher.Constraint("Vertical", 36, 2, 39, 2),
    Sketcher.Constraint("Vertical", 31, 2, 46, 2),
    Sketcher.Constraint("Vertical", 33, 2, 48, 2),
    Sketcher.Constraint("Vertical", 47, 2, 50, 2),
    Sketcher.Constraint("Vertical", 49, 2, 52, 2),
    Sketcher.Constraint("Vertical", 51, 2, 54, 2),
    Sketcher.Constraint("Vertical", 53, 2, 56, 2),
    Sketcher.Constraint("Vertical", 55, 2, 58, 2),
    Sketcher.Constraint("Vertical", 57, 2, 60, 2),
    Sketcher.Constraint("Vertical", 59, 2, 62, 2),
    Sketcher.Constraint("Vertical", 61, 2, 64, 2),
    Sketcher.Constraint("Vertical", 63, 2, 66, 2),
    Sketcher.Constraint("Vertical", 65, 2, 68, 2),
    Sketcher.Constraint("Vertical", 69, 2, 70, 2),
    Sketcher.Constraint("Equal", 3, 5),
    Sketcher.Constraint("Equal", 13, 15),
    Sketcher.Constraint("Equal", 17, 23),
    Sketcher.Constraint("Equal", 25, 27),
    Sketcher.Constraint("Equal", 32, 43),
    Sketcher.Constraint("Equal", 77, 79),
    Sketcher.Constraint("Equal", 81, 83),
    Sketcher.Constraint("Equal", 85, 87),
    Sketcher.Constraint("Equal", 68, 2),
    Sketcher.Constraint("Equal", 0, 7),
    Sketcher.Constraint("Equal", 9, 19),
    Sketcher.Constraint("Equal", 21, 31),
    Sketcher.Constraint("Equal", 36, 40),
    Sketcher.Constraint("Equal", 33, 47),
    Sketcher.Constraint("Equal", 49, 51),
    Sketcher.Constraint("Equal", 53, 55),
    Sketcher.Constraint("Equal", 57, 59),
    Sketcher.Constraint("Equal", 61, 63),
    Sketcher.Constraint("Equal", 65, 67),
    Sketcher.Constraint("DistanceX", 3, 1, 3, 2, 4.0),
    Sketcher.Constraint("DistanceY", 0, 1, 0, 2, 15.0),
    Sketcher.Constraint("DistanceX", 37, 1, 37, 2, 10.0),
    Sketcher.Constraint("DistanceX", 41, 1, 41, 2, 18.0),
    Sketcher.Constraint("DistanceX", 75, 2, 75, 1, 6.0),
    Sketcher.Constraint("DistanceY", 38, 2, 38, 1, 292.0),
    Sketcher.Constraint("DistanceX", 11, 2, 11, 1, 5.5),
    Sketcher.Constraint("DistanceX", 35, 2, 35, 1, 18.1),
    Sketcher.Constraint("DistanceX", 71, 2, 71, 1, 8.1),
    Sketcher.Constraint("DistanceX", -1, 1, 0, 2, 71.626),
    Sketcher.Constraint("DistanceX", -1, 1, 10, 2, 55.376),
    Sketcher.Constraint("DistanceX", -1, 1, 14, 2, 41.376),
    Sketcher.Constraint("DistanceX", -1, 1, 22, 2, 27.376),
    Sketcher.Constraint("DistanceX", -1, 1, 26, 2, 13.376),
    Sketcher.Constraint("DistanceX", 34, 2, -1, 1, 0.374),
    Sketcher.Constraint("DistanceX", -1, 1, 74, 2, 55.526),
    Sketcher.Constraint("DistanceX", -1, 1, 78, 2, 41.526),
    Sketcher.Constraint("DistanceX", -1, 1, 82, 2, 27.526),
    Sketcher.Constraint("DistanceX", -1, 1, 86, 2, 7.526),
    Sketcher.Constraint("DistanceY", -1, 1, 0, 2, 7.6308),
    Sketcher.Constraint("DistanceY", 6, 2, -1, 1, 22.3692),
    Sketcher.Constraint("DistanceY", 18, 2, -1, 1, 52.3692),
    Sketcher.Constraint("DistanceY", 30, 2, -1, 1, 82.3692),
    Sketcher.Constraint("DistanceY", 46, 2, -1, 1, 112.3692),
    Sketcher.Constraint("DistanceY", 50, 2, -1, 1, 142.3692),
    Sketcher.Constraint("DistanceY", 54, 2, -1, 1, 172.3692),
    Sketcher.Constraint("DistanceY", 58, 2, -1, 1, 202.3692),
    Sketcher.Constraint("DistanceY", 62, 2, -1, 1, 232.3692),
    Sketcher.Constraint("DistanceY", 66, 2, -1, 1, 262.3692),
])
sketch2.setExpression("Constraints[241]", "Params.sketch2_width")
sketch2.setExpression("Constraints[242]", "Params.sketch2_height")
sketch2.setExpression("Constraints[243]", "Params.sketch2_width2")
sketch2.setExpression("Constraints[244]", "Params.sketch2_width3")
sketch2.setExpression("Constraints[245]", "Params.sketch2_width4")
pocket1 = body.newObject("PartDesign::Pocket", "Pocket")
pocket1.Profile = sketch2
pocket1.Type = "ThroughAll"

# Sketch on XZ plane
sketch3 = body.newObject("Sketcher::SketchObject", "Sketch002")
sketch3.AttachmentSupport = (doc.getObject("XZ_Plane"), [""])
sketch3.MapMode = "FlatFace"
sketch3.AttachmentOffset = App.Placement(V(0, 0, -4), App.Rotation())
sketch3.addGeometry([
    Part.LineSegment(V(81.6259, -12.3692, 0), V(76.6259, -12.3692, 0)),  # 0
    Part.LineSegment(V(76.6259, -12.3692, 0), V(76.6259, -272.3692, 0)),  # 1
    Part.LineSegment(V(76.6259, -272.3692, 0), V(81.6259, -272.3692, 0)),  # 2
    Part.LineSegment(V(81.6259, -272.3692, 0), V(81.6259, -288.3692, 0)),  # 3
    Part.LineSegment(V(81.6259, -288.3692, 0), V(66.2844, -288.3692, 0)),  # 4
    Part.LineSegment(V(66.2844, -288.3692, 0), V(66.2844, -272.3692, 0)),  # 5
    Part.LineSegment(V(66.2844, -272.3692, 0), V(67.6259, -272.3692, 0)),  # 6
    Part.LineSegment(V(67.6259, -272.3692, 0), V(67.6259, -262.1619, 0)),  # 7
    Part.LineSegment(V(67.6259, -262.1619, 0), V(71.6259, -262.1619, 0)),  # 8
    Part.LineSegment(V(71.6259, -262.1619, 0), V(71.6259, -12.3692, 0)),  # 9
    Part.LineSegment(V(71.6259, -12.3692, 0), V(67.6259, -12.3692, 0)),  # 10
    Part.LineSegment(V(67.6259, -12.3692, 0), V(67.6259, 3.6308, 0)),  # 11
    Part.LineSegment(V(67.6259, 3.6308, 0), V(81.6259, 3.6308, 0)),  # 12
    Part.LineSegment(V(81.6259, 3.6308, 0), V(81.6259, -12.3692, 0)),  # 13
], False)
sketch3.addConstraint([
    Sketcher.Constraint("Coincident", 0, 2, 1, 1),
    Sketcher.Constraint("Coincident", 1, 2, 2, 1),
    Sketcher.Constraint("Coincident", 2, 2, 3, 1),
    Sketcher.Constraint("Coincident", 3, 2, 4, 1),
    Sketcher.Constraint("Coincident", 4, 2, 5, 1),
    Sketcher.Constraint("Coincident", 5, 2, 6, 1),
    Sketcher.Constraint("Coincident", 6, 2, 7, 1),
    Sketcher.Constraint("Coincident", 7, 2, 8, 1),
    Sketcher.Constraint("Coincident", 8, 2, 9, 1),
    Sketcher.Constraint("Coincident", 9, 2, 10, 1),
    Sketcher.Constraint("Coincident", 10, 2, 11, 1),
    Sketcher.Constraint("Coincident", 11, 2, 12, 1),
    Sketcher.Constraint("Coincident", 12, 2, 13, 1),
    Sketcher.Constraint("Coincident", 13, 2, 0, 1),
    Sketcher.Constraint("Horizontal", 0),
    Sketcher.Constraint("Vertical", 1),
    Sketcher.Constraint("Horizontal", 2),
    Sketcher.Constraint("Vertical", 3),
    Sketcher.Constraint("Horizontal", 4),
    Sketcher.Constraint("Vertical", 5),
    Sketcher.Constraint("Horizontal", 6),
    Sketcher.Constraint("Vertical", 7),
    Sketcher.Constraint("Horizontal", 8),
    Sketcher.Constraint("Vertical", 9),
    Sketcher.Constraint("Horizontal", 10),
    Sketcher.Constraint("Vertical", 11),
    Sketcher.Constraint("Horizontal", 12),
    Sketcher.Constraint("Vertical", 13),
    Sketcher.Constraint("Horizontal", 2, 2, 5, 2),
    Sketcher.Constraint("Horizontal", 0, 2, 9, 2),
    Sketcher.Constraint("Vertical", 7, 2, 10, 2),
    Sketcher.Constraint("Vertical", 3, 2, 12, 2),
    Sketcher.Constraint("Equal", 5, 11),
    Sketcher.Constraint("DistanceX", 0, 2, 0, 1, 5.0),
    Sketcher.Constraint("DistanceX", 8, 2, 1, 2, 5.0),
    Sketcher.Constraint("DistanceX", 8, 1, 8, 2, 4.0),
    Sketcher.Constraint("DistanceY", 1, 2, 1, 1, 260.0),
    Sketcher.Constraint("DistanceY", 3, 2, 3, 1, 16.0),
    Sketcher.Constraint("DistanceX", 4, 2, 4, 1, 15.3415),
    Sketcher.Constraint("DistanceY", 7, 1, 7, 2, 10.2073),
    Sketcher.Constraint("DistanceX", -1, 1, 0, 2, 76.626),
    Sketcher.Constraint("DistanceY", 7, 2, -1, 1, 262.162),
])
sketch3.setExpression("Constraints[33]", "Params.sketch3_width")
sketch3.setExpression("Constraints[35]", "Params.sketch3_width2")
sketch3.setExpression("Constraints[36]", "Params.sketch3_height")
sketch3.setExpression("Constraints[37]", "Params.sketch3_height2")
pad2 = body.newObject("PartDesign::Pad", "Pad001")
pad2.Profile = sketch3
pad2.setExpression("Length", "Params.pad2_length")

doc.recompute()
